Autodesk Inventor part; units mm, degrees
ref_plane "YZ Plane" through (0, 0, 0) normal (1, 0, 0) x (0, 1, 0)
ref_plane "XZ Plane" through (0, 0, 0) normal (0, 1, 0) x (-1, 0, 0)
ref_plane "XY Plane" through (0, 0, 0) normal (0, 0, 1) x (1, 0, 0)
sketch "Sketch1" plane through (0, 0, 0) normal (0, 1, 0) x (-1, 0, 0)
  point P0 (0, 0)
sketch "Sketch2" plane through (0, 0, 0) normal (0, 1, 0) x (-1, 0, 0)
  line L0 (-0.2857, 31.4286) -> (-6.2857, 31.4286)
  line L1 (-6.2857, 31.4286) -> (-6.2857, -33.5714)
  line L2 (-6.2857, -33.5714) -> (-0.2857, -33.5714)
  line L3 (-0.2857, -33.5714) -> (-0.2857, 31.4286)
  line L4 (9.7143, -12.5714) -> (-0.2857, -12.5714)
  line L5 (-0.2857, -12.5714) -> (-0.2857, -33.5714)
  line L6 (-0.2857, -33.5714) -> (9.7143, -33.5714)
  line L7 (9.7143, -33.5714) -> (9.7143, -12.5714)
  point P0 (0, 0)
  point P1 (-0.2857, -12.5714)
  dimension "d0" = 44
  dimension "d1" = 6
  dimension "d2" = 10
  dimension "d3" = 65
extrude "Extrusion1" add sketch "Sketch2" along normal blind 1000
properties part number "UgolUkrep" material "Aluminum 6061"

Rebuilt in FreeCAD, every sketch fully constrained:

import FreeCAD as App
import Part
import Sketcher

doc = App.newDocument("Part")
body = doc.addObject("PartDesign::Body", "Body")

# Sketch on XZ plane
sketch1 = body.newObject("Sketcher::SketchObject", "Sketch")
sketch1.AttachmentSupport = (doc.getObject("XZ_Plane"), [""])
sketch1.MapMode = "FlatFace"
sketch1.addGeometry([
    Part.LineSegment(App.Vector(0, -13, 0), App.Vector(0, 31, 0)),  # 0
    Part.LineSegment(App.Vector(0, 31, 0), App.Vector(6, 31, 0)),  # 1
    Part.LineSegment(App.Vector(6, 31, 0), App.Vector(6, -34, 0)),  # 2
    Part.LineSegment(App.Vector(6, -34, 0), App.Vector(-10, -34, 0)),  # 3
    Part.LineSegment(App.Vector(-10, -34, 0), App.Vector(-10, -13, 0)),  # 4
    Part.LineSegment(App.Vector(-10, -13, 0), App.Vector(0, -13, 0)),  # 5
], False)
sketch1.addConstraint([
    Sketcher.Constraint("Coincident", 0, 2, 1, 1),
    Sketcher.Constraint("Coincident", 1, 2, 2, 1),
    Sketcher.Constraint("Coincident", 2, 2, 3, 1),
    Sketcher.Constraint("Coincident", 3, 2, 4, 1),
    Sketcher.Constraint("Coincident", 4, 2, 5, 1),
    Sketcher.Constraint("Coincident", 5, 2, 0, 1),
    Sketcher.Constraint("Vertical", 0),
    Sketcher.Constraint("Horizontal", 1),
    Sketcher.Constraint("Vertical", 2),
    Sketcher.Constraint("Horizontal", 3),
    Sketcher.Constraint("Vertical", 4),
    Sketcher.Constraint("Horizontal", 5),
    Sketcher.Constraint("DistanceX", 1, 1, 1, 2, 6.0),
    Sketcher.Constraint("DistanceX", 5, 1, 5, 2, 10.0),
    Sketcher.Constraint("DistanceY", 0, 1, 0, 2, 44.0),
    Sketcher.Constraint("DistanceY", 2, 2, 2, 1, 65.0),
    Sketcher.Constraint("DistanceX", -1, 1, 0, 2, 0.2857),
    Sketcher.Constraint("DistanceY", -1, 1, 0, 2, 31.4286),
])
pad1 = body.newObject("PartDesign::Pad", "Pad")
pad1.Profile = sketch1
pad1.Length = 1000
pad1.Reversed = True

doc.recompute()
